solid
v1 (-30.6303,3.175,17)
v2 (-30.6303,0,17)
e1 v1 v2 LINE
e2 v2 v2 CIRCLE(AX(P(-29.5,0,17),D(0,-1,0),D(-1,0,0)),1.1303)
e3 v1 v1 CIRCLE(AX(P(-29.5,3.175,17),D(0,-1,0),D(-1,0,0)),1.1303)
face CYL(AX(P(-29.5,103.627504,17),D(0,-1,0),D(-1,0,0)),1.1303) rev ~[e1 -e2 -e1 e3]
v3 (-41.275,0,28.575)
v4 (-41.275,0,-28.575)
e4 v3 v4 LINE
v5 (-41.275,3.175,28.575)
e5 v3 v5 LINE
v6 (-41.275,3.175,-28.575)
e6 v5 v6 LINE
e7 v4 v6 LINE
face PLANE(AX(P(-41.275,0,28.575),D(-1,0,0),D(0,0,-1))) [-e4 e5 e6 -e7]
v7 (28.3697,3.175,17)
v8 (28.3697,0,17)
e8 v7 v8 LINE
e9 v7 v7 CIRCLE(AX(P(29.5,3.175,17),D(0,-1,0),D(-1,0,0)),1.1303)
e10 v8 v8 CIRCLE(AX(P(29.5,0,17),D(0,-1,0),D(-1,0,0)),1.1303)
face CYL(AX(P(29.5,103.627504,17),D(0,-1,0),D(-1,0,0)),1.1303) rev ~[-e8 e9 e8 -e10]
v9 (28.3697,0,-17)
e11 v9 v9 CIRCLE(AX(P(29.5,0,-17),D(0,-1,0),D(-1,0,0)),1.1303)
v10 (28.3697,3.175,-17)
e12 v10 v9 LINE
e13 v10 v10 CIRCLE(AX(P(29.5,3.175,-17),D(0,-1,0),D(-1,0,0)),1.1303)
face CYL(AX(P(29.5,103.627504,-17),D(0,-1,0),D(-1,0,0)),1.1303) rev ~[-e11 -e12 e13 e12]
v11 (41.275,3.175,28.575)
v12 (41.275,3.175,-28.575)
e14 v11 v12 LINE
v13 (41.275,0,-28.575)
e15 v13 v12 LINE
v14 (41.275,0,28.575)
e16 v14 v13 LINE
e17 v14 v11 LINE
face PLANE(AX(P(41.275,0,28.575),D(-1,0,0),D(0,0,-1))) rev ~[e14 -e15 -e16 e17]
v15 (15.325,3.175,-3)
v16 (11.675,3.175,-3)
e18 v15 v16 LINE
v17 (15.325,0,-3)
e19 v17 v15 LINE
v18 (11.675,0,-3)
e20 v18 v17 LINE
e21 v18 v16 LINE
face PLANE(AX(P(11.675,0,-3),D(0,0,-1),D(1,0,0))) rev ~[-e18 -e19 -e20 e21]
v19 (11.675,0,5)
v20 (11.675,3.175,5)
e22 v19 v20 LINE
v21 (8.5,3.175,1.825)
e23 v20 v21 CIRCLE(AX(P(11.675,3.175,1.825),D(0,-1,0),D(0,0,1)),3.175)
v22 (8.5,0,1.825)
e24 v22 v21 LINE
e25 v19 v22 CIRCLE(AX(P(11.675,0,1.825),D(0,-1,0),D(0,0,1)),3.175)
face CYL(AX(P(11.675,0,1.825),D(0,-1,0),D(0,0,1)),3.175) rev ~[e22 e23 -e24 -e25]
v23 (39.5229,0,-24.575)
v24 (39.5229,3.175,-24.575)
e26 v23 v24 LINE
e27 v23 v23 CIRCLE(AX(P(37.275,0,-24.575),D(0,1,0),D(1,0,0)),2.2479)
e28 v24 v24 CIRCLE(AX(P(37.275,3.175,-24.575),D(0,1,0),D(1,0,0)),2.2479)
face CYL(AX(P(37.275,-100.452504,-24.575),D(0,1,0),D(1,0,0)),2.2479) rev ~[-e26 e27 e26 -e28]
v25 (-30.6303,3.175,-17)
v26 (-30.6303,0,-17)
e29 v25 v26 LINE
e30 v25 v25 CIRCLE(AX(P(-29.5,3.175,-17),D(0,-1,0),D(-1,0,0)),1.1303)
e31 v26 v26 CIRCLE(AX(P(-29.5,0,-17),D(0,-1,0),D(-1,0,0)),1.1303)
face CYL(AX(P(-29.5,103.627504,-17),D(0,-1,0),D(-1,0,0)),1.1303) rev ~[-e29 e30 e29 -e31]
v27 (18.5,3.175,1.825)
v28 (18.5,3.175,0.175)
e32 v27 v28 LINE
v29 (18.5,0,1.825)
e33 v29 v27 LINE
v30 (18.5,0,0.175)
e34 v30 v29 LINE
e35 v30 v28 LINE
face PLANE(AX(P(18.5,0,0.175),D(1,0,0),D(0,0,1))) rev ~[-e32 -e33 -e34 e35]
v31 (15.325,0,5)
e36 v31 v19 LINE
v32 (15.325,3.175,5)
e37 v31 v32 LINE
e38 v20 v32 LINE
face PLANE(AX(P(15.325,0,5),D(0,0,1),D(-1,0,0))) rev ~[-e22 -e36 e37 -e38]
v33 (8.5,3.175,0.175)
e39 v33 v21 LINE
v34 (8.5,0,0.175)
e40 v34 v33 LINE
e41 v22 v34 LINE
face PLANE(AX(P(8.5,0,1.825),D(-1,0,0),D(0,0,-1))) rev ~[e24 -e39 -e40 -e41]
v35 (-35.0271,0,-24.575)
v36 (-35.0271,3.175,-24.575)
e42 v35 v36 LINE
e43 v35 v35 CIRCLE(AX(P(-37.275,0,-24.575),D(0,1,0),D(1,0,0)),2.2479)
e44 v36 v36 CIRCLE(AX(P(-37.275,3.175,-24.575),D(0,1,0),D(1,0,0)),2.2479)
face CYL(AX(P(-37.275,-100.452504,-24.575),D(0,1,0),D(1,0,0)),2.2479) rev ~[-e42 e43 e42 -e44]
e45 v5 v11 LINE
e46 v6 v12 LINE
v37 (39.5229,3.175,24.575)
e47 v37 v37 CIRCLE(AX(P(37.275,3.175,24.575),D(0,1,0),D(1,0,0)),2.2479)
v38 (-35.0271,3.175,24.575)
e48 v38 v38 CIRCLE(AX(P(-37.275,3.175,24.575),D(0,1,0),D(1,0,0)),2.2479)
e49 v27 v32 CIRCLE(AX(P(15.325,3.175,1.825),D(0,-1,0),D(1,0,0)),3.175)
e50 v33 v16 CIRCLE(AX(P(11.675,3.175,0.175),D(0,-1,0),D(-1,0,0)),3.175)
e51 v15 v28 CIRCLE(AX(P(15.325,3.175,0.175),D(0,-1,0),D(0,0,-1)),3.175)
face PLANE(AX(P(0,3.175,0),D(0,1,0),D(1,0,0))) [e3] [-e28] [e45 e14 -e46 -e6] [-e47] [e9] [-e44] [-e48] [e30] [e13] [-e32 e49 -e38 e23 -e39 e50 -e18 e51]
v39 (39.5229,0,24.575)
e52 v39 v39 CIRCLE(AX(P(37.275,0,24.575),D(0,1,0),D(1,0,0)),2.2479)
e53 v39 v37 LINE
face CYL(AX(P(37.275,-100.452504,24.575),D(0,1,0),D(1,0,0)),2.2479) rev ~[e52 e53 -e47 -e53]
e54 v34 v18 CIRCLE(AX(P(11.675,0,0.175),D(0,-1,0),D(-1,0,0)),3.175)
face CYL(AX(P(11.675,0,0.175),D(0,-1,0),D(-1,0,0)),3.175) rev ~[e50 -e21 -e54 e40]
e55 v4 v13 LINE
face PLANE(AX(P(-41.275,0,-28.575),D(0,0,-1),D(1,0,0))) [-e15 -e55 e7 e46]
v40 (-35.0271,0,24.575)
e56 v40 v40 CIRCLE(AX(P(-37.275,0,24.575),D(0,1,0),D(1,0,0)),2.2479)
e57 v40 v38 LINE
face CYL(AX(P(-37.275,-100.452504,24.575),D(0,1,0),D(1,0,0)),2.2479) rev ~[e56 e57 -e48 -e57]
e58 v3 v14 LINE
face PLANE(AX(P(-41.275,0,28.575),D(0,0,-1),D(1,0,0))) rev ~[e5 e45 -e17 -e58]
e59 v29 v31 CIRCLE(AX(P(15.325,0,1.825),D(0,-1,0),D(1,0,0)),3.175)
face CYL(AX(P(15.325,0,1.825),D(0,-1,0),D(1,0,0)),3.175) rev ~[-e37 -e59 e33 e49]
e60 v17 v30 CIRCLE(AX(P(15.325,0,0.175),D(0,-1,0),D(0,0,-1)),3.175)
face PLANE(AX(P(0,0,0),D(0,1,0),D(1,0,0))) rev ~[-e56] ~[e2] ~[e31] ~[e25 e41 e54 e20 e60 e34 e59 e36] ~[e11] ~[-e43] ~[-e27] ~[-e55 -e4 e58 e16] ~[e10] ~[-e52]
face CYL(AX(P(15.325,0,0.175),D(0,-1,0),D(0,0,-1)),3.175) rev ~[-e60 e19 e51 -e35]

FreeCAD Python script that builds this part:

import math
import FreeCAD as App
import Part
import Sketcher

V = App.Vector
Q = App.Units.Quantity


def add_polygon(sketch, points):
    """Adds a closed chain of lines whose ends are joined by coincident constraints."""
    first, n = sketch.GeometryCount, len(points)
    for a, b in zip(points, points[1:] + points[:1]):
        sketch.addGeometry(Part.LineSegment(App.Vector(*a, 0), App.Vector(*b, 0)), False)
    for i in range(n):
        sketch.addConstraint(Sketcher.Constraint("Coincident", first + i, 2, first + (i + 1) % n, 1))

doc = App.newDocument("Part")
body = doc.addObject("PartDesign::Body", "Body")

# Sketch on XZ plane
sketch1 = doc.addObject("Sketcher::SketchObject", "Sketch")
body.addObject(sketch1)
sketch1.AttachmentSupport = (doc.XZ_Plane, [""])
sketch1.MapMode = "FlatFace"
add_polygon(sketch1, [(-41, -29), (-41, 29), (41, 29), (41, -29)])  # lines 0-3
sketch1.addConstraint(Sketcher.Constraint("Vertical", 0))
sketch1.addConstraint(Sketcher.Constraint("Horizontal", 1))
sketch1.addConstraint(Sketcher.Constraint("Vertical", 2))
sketch1.addConstraint(Sketcher.Constraint("Horizontal", 3))
sketch1.addConstraint(Sketcher.Constraint("Symmetric", 0, 2, 2, 2, -1, 1))
sketch1.addConstraint(Sketcher.Constraint("DistanceX", 1, 1, 1, 2, Q("3.25 in")))
sketch1.addConstraint(Sketcher.Constraint("DistanceY", 0, 1, 0, 2, Q("2.25 in")))
pad1 = doc.addObject("PartDesign::Pad", "Pad")
body.addObject(pad1)
pad1.Profile = sketch1
pad1.Length = Q("0.125 in")
pad1.Reversed = True

# Sketch on XZ plane
sketch2 = doc.addObject("Sketcher::SketchObject", "Sketch001")
body.addObject(sketch2)
sketch2.AttachmentSupport = (doc.XZ_Plane, [""])
sketch2.MapMode = "FlatFace"
sketch2.addGeometry(Part.LineSegment(V(8.5, 1.8, 0), V(8.5, 0.2, 0)), False)
sketch2.addGeometry(Part.ArcOfCircle(Part.Circle(V(11.7, 0.2, 0), V(0, 0, 1), 3.2), math.radians(-180), math.radians(-90)), False)
sketch2.addGeometry(Part.LineSegment(V(11.7, -3, 0), V(15.3, -3, 0)), False)
sketch2.addGeometry(Part.ArcOfCircle(Part.Circle(V(15.3, 0.2, 0), V(0, 0, 1), 3.2), math.radians(-90), math.radians(0)), False)
sketch2.addGeometry(Part.LineSegment(V(18.5, 0.2, 0), V(18.5, 1.8, 0)), False)
sketch2.addGeometry(Part.ArcOfCircle(Part.Circle(V(15.3, 1.8, 0), V(0, 0, 1), 3.2), math.radians(0), math.radians(90)), False)
sketch2.addGeometry(Part.LineSegment(V(15.3, 5, 0), V(11.7, 5, 0)), False)
sketch2.addGeometry(Part.ArcOfCircle(Part.Circle(V(11.7, 1.8, 0), V(0, 0, 1), 3.2), math.radians(90), math.radians(180)), False)
sketch2.addConstraint(Sketcher.Constraint("Tangent", 0, 2, 1, 1))
sketch2.addConstraint(Sketcher.Constraint("Tangent", 1, 2, 2, 1))
sketch2.addConstraint(Sketcher.Constraint("Tangent", 2, 2, 3, 1))
sketch2.addConstraint(Sketcher.Constraint("Tangent", 3, 2, 4, 1))
sketch2.addConstraint(Sketcher.Constraint("Tangent", 4, 2, 5, 1))
sketch2.addConstraint(Sketcher.Constraint("Tangent", 5, 2, 6, 1))
sketch2.addConstraint(Sketcher.Constraint("Tangent", 6, 2, 7, 1))
sketch2.addConstraint(Sketcher.Constraint("Tangent", 7, 2, 0, 1))
sketch2.addConstraint(Sketcher.Constraint("Vertical", 0))
sketch2.addConstraint(Sketcher.Constraint("Horizontal", 2))
sketch2.addConstraint(Sketcher.Constraint("Vertical", 4))
sketch2.addConstraint(Sketcher.Constraint("Horizontal", 6))
sketch2.addConstraint(Sketcher.Constraint("Equal", 1, 3))
sketch2.addConstraint(Sketcher.Constraint("Equal", 3, 5))
sketch2.addConstraint(Sketcher.Constraint("Equal", 5, 7))
sketch2.addConstraint(Sketcher.Constraint("Radius", 1, Q("0.125 in")))
sketch2.addConstraint(Sketcher.Constraint("DistanceX", 2, 1, 2, 2, 3.65))
sketch2.addConstraint(Sketcher.Constraint("DistanceY", 0, 2, 0, 1, 1.65))
sketch2.addConstraint(Sketcher.Constraint("DistanceX", -1, 1, 1, 3, 11.675))
sketch2.addConstraint(Sketcher.Constraint("DistanceY", -1, 1, 1, 3, 0.175))
pocket1 = doc.addObject("PartDesign::Pocket", "Pocket")
body.addObject(pocket1)
pocket1.Profile = sketch2
pocket1.Length = 10

# Sketch on XZ plane
sketch3 = doc.addObject("Sketcher::SketchObject", "Sketch002")
body.addObject(sketch3)
sketch3.AttachmentSupport = (doc.XZ_Plane, [""])
sketch3.MapMode = "FlatFace"
sketch3.addGeometry(Part.Circle(V(37.3, -24.6, 0), V(0, 0, 1), 2.2), False)
sketch3.addGeometry(Part.Circle(V(-37.3, -24.6, 0), V(0, 0, 1), 2.2), False)
sketch3.addGeometry(Part.Circle(V(-37.3, 24.6, 0), V(0, 0, 1), 2.2), False)
sketch3.addGeometry(Part.Circle(V(37.3, 24.6, 0), V(0, 0, 1), 2.2), False)
sketch3.addConstraint(Sketcher.Constraint("Equal", 0, 1))
sketch3.addConstraint(Sketcher.Constraint("Equal", 1, 2))
sketch3.addConstraint(Sketcher.Constraint("Equal", 2, 3))
sketch3.addConstraint(Sketcher.Constraint("Symmetric", 0, 3, 2, 3, -1, 1))
sketch3.addConstraint(Sketcher.Constraint("Symmetric", 1, 3, 3, 3, -1, 1))
sketch3.addConstraint(Sketcher.Constraint("Symmetric", 0, 3, 1, 3, -2))
sketch3.addConstraint(Sketcher.Constraint("Diameter", 0, Q("0.177 in")))
sketch3.addConstraint(Sketcher.Constraint("DistanceX", -1, 1, 0, 3, 37.275))
sketch3.addConstraint(Sketcher.Constraint("DistanceY", 0, 3, -1, 1, 24.575))
doc.recompute()
hole = doc.addObject("PartDesign::Hole", "Hole")
body.addObject(hole)
hole.Profile = sketch3
hole.ThreadType = "None"
hole.Diameter = Q("0.177 in")
hole.DepthType = "ThroughAll"

# Sketch on XZ plane
sketch4 = doc.addObject("Sketcher::SketchObject", "Sketch003")
body.addObject(sketch4)
sketch4.AttachmentSupport = (doc.XZ_Plane, [""])
sketch4.MapMode = "FlatFace"
sketch4.AttachmentOffset = App.Placement(V(0, 0, -0.125 * 25.4), App.Rotation())
sketch4.addGeometry(Part.Circle(V(-29.5, 17, 0), V(0, 0, 1), 1.1), False)
sketch4.addGeometry(Part.Circle(V(-29.5, -17, 0), V(0, 0, 1), 1.1), False)
sketch4.addGeometry(Part.Circle(V(29.5, -17, 0), V(0, 0, 1), 1.1), False)
sketch4.addGeometry(Part.Circle(V(29.5, 17, 0), V(0, 0, 1), 1.1), False)
sketch4.addConstraint(Sketcher.Constraint("Equal", 0, 1))
sketch4.addConstraint(Sketcher.Constraint("Equal", 1, 2))
sketch4.addConstraint(Sketcher.Constraint("Equal", 2, 3))
sketch4.addConstraint(Sketcher.Constraint("Symmetric", 0, 3, 2, 3, -1, 1))
sketch4.addConstraint(Sketcher.Constraint("Symmetric", 1, 3, 3, 3, -1, 1))
sketch4.addConstraint(Sketcher.Constraint("Symmetric", 1, 3, 2, 3, -2))
sketch4.addConstraint(Sketcher.Constraint("Diameter", 0, Q("0.089 in")))
sketch4.addConstraint(Sketcher.Constraint("DistanceX", 0, 3, -1, 1, 29.5))
sketch4.addConstraint(Sketcher.Constraint("DistanceY", -1, 1, 0, 3, 17.0))
doc.recompute()
hole2 = doc.addObject("PartDesign::Hole", "Hole001")
body.addObject(hole2)
hole2.Profile = sketch4
hole2.ThreadType = "None"
hole2.Diameter = Q("0.089 in")
hole2.DepthType = "ThroughAll"
hole2.Reversed = True

doc.recompute()
